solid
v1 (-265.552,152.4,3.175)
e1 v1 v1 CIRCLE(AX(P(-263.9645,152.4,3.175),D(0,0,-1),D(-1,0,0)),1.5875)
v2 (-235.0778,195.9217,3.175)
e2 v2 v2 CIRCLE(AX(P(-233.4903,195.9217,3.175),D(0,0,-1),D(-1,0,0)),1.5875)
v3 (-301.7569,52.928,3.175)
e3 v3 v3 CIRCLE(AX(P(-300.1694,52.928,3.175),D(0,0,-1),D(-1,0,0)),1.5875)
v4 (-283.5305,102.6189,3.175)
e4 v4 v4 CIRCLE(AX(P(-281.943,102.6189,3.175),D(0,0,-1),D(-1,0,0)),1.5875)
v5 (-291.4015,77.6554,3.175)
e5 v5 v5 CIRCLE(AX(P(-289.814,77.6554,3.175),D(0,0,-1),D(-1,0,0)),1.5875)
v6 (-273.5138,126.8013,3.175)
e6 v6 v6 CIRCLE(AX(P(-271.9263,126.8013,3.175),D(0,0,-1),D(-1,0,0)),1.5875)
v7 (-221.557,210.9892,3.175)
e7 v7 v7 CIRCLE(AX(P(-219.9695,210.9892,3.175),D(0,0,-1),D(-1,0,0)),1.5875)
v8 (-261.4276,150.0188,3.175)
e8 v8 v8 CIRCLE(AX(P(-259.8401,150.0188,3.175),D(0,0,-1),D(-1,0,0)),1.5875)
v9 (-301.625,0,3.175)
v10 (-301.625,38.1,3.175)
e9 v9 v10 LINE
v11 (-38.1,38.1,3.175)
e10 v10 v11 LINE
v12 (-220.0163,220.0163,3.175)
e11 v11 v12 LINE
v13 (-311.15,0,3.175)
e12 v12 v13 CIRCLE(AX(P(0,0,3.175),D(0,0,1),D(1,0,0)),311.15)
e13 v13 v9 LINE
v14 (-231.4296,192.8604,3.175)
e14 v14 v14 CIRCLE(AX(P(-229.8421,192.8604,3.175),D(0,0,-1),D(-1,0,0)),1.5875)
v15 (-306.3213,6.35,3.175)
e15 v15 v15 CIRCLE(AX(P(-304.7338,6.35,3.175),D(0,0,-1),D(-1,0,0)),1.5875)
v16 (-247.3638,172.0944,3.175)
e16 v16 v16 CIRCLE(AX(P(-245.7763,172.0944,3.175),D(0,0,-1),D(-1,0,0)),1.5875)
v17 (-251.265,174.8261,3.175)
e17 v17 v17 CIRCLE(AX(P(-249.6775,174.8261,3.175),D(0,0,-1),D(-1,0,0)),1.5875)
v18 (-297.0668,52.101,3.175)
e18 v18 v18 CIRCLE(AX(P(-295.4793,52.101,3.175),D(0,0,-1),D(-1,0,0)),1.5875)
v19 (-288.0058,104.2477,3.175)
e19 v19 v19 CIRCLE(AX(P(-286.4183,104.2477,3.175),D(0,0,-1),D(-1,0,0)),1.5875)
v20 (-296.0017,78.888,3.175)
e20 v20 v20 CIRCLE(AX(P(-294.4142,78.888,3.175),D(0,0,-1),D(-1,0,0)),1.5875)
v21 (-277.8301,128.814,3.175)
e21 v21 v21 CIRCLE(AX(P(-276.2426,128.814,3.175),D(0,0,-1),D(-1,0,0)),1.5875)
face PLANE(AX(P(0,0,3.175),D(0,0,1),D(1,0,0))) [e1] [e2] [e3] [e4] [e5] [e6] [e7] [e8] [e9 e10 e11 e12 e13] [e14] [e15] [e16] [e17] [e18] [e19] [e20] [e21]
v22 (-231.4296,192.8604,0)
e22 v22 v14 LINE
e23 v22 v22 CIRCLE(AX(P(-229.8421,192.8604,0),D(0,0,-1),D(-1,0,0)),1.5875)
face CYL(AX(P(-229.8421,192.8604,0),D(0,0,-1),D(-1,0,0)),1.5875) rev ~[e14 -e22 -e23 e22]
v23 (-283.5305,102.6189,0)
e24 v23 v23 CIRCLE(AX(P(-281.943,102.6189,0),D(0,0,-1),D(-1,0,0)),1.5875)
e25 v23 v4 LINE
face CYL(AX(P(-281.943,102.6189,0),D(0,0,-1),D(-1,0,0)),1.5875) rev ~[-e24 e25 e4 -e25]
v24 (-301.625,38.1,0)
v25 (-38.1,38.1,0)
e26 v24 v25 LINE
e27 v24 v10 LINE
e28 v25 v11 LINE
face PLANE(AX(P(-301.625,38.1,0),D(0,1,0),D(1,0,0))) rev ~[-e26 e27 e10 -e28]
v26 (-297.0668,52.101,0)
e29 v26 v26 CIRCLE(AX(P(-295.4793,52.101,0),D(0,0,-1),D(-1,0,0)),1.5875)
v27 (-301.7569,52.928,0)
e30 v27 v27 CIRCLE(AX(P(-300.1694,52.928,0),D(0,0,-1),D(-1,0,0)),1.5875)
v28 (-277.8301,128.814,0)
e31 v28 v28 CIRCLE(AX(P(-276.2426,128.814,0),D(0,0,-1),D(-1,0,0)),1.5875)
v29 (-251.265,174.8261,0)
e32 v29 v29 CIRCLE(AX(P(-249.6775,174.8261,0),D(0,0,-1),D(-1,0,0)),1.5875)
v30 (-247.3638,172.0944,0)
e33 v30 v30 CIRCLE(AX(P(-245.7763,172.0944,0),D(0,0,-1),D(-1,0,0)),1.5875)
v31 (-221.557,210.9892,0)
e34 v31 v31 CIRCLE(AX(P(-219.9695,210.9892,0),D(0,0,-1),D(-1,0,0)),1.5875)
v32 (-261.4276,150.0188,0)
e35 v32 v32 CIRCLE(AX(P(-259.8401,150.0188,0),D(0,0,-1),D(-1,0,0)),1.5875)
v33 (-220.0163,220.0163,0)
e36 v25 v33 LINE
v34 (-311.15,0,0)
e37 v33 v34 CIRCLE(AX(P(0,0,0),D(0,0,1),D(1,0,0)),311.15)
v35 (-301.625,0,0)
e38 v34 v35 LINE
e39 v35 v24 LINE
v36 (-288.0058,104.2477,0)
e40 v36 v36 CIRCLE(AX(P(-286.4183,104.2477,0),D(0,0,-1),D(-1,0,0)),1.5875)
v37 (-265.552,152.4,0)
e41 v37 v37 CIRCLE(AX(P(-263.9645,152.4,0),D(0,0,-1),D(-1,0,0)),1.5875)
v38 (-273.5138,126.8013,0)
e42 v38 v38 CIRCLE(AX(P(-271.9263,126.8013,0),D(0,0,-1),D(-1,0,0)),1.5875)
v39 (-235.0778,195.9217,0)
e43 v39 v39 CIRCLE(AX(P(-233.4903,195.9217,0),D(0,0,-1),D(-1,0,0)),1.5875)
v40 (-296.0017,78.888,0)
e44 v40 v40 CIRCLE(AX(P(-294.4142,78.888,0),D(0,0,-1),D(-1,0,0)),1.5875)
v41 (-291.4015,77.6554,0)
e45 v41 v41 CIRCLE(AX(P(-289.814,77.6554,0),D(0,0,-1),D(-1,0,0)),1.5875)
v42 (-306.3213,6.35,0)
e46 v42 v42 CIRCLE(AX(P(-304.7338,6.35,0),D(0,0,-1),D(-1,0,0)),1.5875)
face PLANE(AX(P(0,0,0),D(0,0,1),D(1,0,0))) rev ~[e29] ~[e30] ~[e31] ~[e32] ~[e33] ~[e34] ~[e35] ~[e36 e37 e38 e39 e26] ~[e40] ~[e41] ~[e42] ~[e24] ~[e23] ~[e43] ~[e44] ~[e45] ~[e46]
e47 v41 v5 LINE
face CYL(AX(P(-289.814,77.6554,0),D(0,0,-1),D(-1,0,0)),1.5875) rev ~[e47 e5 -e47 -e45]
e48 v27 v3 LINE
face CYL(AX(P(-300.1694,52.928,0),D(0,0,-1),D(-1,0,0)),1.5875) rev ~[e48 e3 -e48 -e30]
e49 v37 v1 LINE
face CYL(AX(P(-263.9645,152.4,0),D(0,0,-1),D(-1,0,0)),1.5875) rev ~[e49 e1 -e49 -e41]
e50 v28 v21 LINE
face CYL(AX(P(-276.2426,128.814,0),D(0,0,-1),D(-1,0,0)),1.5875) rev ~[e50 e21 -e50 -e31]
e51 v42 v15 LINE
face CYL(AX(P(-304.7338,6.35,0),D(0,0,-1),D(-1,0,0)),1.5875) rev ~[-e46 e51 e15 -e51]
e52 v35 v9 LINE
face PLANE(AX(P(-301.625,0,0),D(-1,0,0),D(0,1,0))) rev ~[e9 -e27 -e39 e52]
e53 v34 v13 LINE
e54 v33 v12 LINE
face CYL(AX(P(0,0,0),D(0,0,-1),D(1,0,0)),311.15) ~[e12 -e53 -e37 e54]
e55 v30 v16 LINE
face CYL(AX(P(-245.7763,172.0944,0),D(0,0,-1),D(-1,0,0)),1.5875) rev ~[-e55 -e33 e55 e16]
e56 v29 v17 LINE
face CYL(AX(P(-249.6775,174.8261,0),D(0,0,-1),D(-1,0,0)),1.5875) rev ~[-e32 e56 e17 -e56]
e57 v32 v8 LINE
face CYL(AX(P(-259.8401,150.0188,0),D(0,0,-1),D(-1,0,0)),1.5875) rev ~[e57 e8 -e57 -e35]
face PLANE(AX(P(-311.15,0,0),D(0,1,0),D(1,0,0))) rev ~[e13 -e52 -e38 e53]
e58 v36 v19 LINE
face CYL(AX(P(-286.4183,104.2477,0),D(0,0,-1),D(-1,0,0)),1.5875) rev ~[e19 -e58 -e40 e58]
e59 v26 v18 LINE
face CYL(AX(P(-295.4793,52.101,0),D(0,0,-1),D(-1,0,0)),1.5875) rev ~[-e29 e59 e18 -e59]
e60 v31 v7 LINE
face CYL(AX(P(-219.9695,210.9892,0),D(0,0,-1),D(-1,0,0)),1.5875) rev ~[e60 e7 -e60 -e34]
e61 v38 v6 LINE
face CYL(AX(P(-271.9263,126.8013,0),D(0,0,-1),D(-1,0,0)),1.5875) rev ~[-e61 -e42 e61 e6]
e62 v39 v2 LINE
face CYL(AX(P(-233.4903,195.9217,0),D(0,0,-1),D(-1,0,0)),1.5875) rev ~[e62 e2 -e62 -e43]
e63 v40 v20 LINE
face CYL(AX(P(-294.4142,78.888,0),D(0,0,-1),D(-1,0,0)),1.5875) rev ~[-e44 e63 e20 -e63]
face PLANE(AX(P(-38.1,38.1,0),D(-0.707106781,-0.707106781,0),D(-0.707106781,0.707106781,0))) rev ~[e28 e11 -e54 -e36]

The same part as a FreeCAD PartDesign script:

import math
import FreeCAD as App
import Part
import Sketcher
from FreeCAD import Vector
Q = App.Units.Quantity

doc = App.newDocument("Part")
body = doc.addObject("PartDesign::Body", "Body")

sketch1 = doc.addObject("Sketcher::SketchObject", "Sketch")
body.addObject(sketch1)
sketch1.AttachmentSupport = (doc.XY_Plane, [""])
sketch1.MapMode = "FlatFace"
sketch1.addGeometry(Part.ArcOfCircle(Part.Circle(Vector(0, 0, 0), Vector(0, 0, 1), 311), math.radians(135), math.radians(180)), False)
sketch1.addGeometry(Part.LineSegment(Vector(-311, 0, 0), Vector(-302, 0, 0)), False)
sketch1.addGeometry(Part.LineSegment(Vector(-302, 0, 0), Vector(-302, 38, 0)), False)
sketch1.addGeometry(Part.LineSegment(Vector(-302, 38, 0), Vector(-38, 38, 0)), False)
sketch1.addGeometry(Part.LineSegment(Vector(-38, 38, 0), Vector(-220, 220, 0)), False)
sketch1.addConstraint(Sketcher.Constraint("Coincident", 0, 2, 1, 1))
sketch1.addConstraint(Sketcher.Constraint("Coincident", 1, 2, 2, 1))
sketch1.addConstraint(Sketcher.Constraint("Coincident", 2, 2, 3, 1))
sketch1.addConstraint(Sketcher.Constraint("Coincident", 3, 2, 4, 1))
sketch1.addConstraint(Sketcher.Constraint("Coincident", 4, 2, 0, 1))
sketch1.addConstraint(Sketcher.Constraint("Horizontal", 1))
sketch1.addConstraint(Sketcher.Constraint("Vertical", 2))
sketch1.addConstraint(Sketcher.Constraint("Horizontal", 3))
sketch1.addConstraint(Sketcher.Constraint("Coincident", 0, 3, -1, 1))
sketch1.addConstraint(Sketcher.Constraint("PointOnObject", 1, 2, -1))
sketch1.addConstraint(Sketcher.Constraint("DistanceY", 2, 1, 2, 2, Q("1.5 in")))
sketch1.addConstraint(Sketcher.Constraint("DistanceX", 3, 2, -1, 1, Q("1.5 in")))
sketch1.addConstraint(Sketcher.Constraint("DistanceX", 1, 1, 1, 2, Q("0.375 in")))
sketch1.addConstraint(Sketcher.Constraint("Radius", 0, Q("12.25 in")))
sketch1.addConstraint(Sketcher.Constraint("Angle", 4, Q("135 deg")))
pad1 = doc.addObject("PartDesign::Pad", "Pad")
body.addObject(pad1)
pad1.Profile = sketch1
pad1.Length = Q("0.125 in")

sketch2 = doc.addObject("Sketcher::SketchObject", "Sketch001")
body.addObject(sketch2)
sketch2.AttachmentSupport = (doc.XY_Plane, [""])
sketch2.MapMode = "FlatFace"
sketch2.addGeometry(Part.Circle(Vector(-245.8, 172.1, 0), Vector(0, 0, 1), 1.6), False)
sketch2.addGeometry(Part.Circle(Vector(-271.9, 126.8, 0), Vector(0, 0, 1), 1.6), False)
sketch2.addGeometry(Part.Circle(Vector(-289.8, 77.7, 0), Vector(0, 0, 1), 1.6), False)
sketch2.addGeometry(Part.Circle(Vector(-304.7, 6.3, 0), Vector(0, 0, 1), 1.6), False)
sketch2.addGeometry(Part.Circle(Vector(-249.7, 174.8, 0), Vector(0, 0, 1), 1.6), False)
sketch2.addGeometry(Part.Circle(Vector(-276.2, 128.8, 0), Vector(0, 0, 1), 1.6), False)
sketch2.addGeometry(Part.Circle(Vector(-294.4, 78.9, 0), Vector(0, 0, 1), 1.6), False)
sketch2.addGeometry(Part.Circle(Vector(-300.2, 52.9, 0), Vector(0, 0, 1), 1.6), False)
sketch2.addGeometry(Part.Circle(Vector(-286.4, 104.2, 0), Vector(0, 0, 1), 1.6), False)
sketch2.addGeometry(Part.Circle(Vector(-264, 152.4, 0), Vector(0, 0, 1), 1.6), False)
sketch2.addGeometry(Part.Circle(Vector(-233.5, 195.9, 0), Vector(0, 0, 1), 1.6), False)
sketch2.addGeometry(Part.Circle(Vector(-220, 211, 0), Vector(0, 0, 1), 1.6), False)
sketch2.addGeometry(Part.Circle(Vector(-295.5, 52.1, 0), Vector(0, 0, 1), 1.6), False)
sketch2.addGeometry(Part.Circle(Vector(-281.9, 102.6, 0), Vector(0, 0, 1), 1.6), False)
sketch2.addGeometry(Part.Circle(Vector(-259.8, 150, 0), Vector(0, 0, 1), 1.6), False)
sketch2.addGeometry(Part.Circle(Vector(-229.8, 192.9, 0), Vector(0, 0, 1), 1.6), False)
sketch2.addConstraint(Sketcher.Constraint("Equal", 0, 1))
sketch2.addConstraint(Sketcher.Constraint("Equal", 1, 2))
sketch2.addConstraint(Sketcher.Constraint("Equal", 2, 3))
sketch2.addConstraint(Sketcher.Constraint("Equal", 3, 4))
sketch2.addConstraint(Sketcher.Constraint("Equal", 4, 5))
sketch2.addConstraint(Sketcher.Constraint("Equal", 5, 6))
sketch2.addConstraint(Sketcher.Constraint("Equal", 6, 7))
sketch2.addConstraint(Sketcher.Constraint("Equal", 7, 8))
sketch2.addConstraint(Sketcher.Constraint("Equal", 8, 9))
sketch2.addConstraint(Sketcher.Constraint("Equal", 9, 10))
sketch2.addConstraint(Sketcher.Constraint("Equal", 10, 11))
sketch2.addConstraint(Sketcher.Constraint("Equal", 11, 12))
sketch2.addConstraint(Sketcher.Constraint("Equal", 12, 13))
sketch2.addConstraint(Sketcher.Constraint("Equal", 13, 14))
sketch2.addConstraint(Sketcher.Constraint("Equal", 14, 15))
sketch2.addConstraint(Sketcher.Constraint("Diameter", 0, Q("0.125 in")))
sketch2.addConstraint(Sketcher.Constraint("DistanceY", -1, 1, 9, 3, Q("6 in")))
sketch2.addConstraint(Sketcher.Constraint("DistanceX", 2, 3, -1, 1, Q("11.41 in")))
sketch2.addConstraint(Sketcher.Constraint("DistanceY", -1, 1, 3, 3, Q("0.25 in")))
sketch2.addConstraint(Sketcher.Constraint("DistanceY", 4, 3, 15, 3, Q("0.71 in")))
sketch2.addConstraint(Sketcher.Constraint("DistanceY", -1, 1, 14, 3, Q("5.906252 in")))
sketch2.addConstraint(Sketcher.Constraint("DistanceX", 7, 3, 5, 3, Q("0.942 in")))
sketch2.addConstraint(Sketcher.Constraint("DistanceX", 8, 3, 9, 3, Q("0.884 in")))
sketch2.addConstraint(Sketcher.Constraint("DistanceX", 6, 3, 13, 3, Q("0.491 in")))
sketch2.addConstraint(Sketcher.Constraint("DistanceY", -1, 1, 2, 3, Q("3.0573 in")))
sketch2.addConstraint(Sketcher.Constraint("DistanceX", 3, 3, -1, 1, Q("11.9974 in")))
sketch2.addConstraint(Sketcher.Constraint("DistanceX", 5, 3, -1, 1, Q("10.8757 in")))
sketch2.addConstraint(Sketcher.Constraint("DistanceX", 6, 3, -1, 1, Q("11.5911 in")))
sketch2.addConstraint(Sketcher.Constraint("DistanceX", 8, 3, -1, 1, Q("11.2763 in")))
sketch2.addConstraint(Sketcher.Constraint("DistanceX", 15, 3, -1, 1, Q("9.0489 in")))
sketch2.addConstraint(Sketcher.Constraint("DistanceY", 1, 3, 0, 3, Q("1.7832 in")))
sketch2.addConstraint(Sketcher.Constraint("DistanceX", 4, 3, 0, 3, Q("0.1536 in")))
sketch2.addConstraint(Sketcher.Constraint("DistanceY", 5, 3, 4, 3, Q("1.8115 in")))
sketch2.addConstraint(Sketcher.Constraint("DistanceY", 6, 3, 5, 3, Q("1.9656 in")))
sketch2.addConstraint(Sketcher.Constraint("DistanceY", 7, 3, 1, 3, Q("2.9084 in")))
sketch2.addConstraint(Sketcher.Constraint("DistanceX", 4, 3, 10, 3, Q("0.6373 in")))
sketch2.addConstraint(Sketcher.Constraint("DistanceY", 10, 3, 11, 3, Q("0.5932 in")))
sketch2.addConstraint(Sketcher.Constraint("DistanceY", 0, 3, 11, 3, Q("1.5313 in")))
sketch2.addConstraint(Sketcher.Constraint("DistanceX", 4, 3, 11, 3, Q("1.1696 in")))
sketch2.addConstraint(Sketcher.Constraint("DistanceY", 12, 3, 6, 3, Q("1.0546 in")))
sketch2.addConstraint(Sketcher.Constraint("DistanceY", 13, 3, 5, 3, Q("1.0313 in")))
sketch2.addConstraint(Sketcher.Constraint("DistanceX", 14, 3, 0, 3, Q("0.5537 in")))
sketch2.addConstraint(Sketcher.Constraint("DistanceX", 0, 3, -1, 1, Q("245.7763 mm")))
sketch2.addConstraint(Sketcher.Constraint("DistanceY", -1, 1, 0, 3, Q("172.0944 mm")))
sketch2.addConstraint(Sketcher.Constraint("DistanceX", 1, 3, -1, 1, Q("271.9263 mm")))
sketch2.addConstraint(Sketcher.Constraint("DistanceY", -1, 1, 4, 3, Q("174.826 mm")))
sketch2.addConstraint(Sketcher.Constraint("DistanceY", -1, 1, 8, 3, Q("104.2477 mm")))
sketch2.addConstraint(Sketcher.Constraint("DistanceX", 12, 3, -1, 1, Q("295.4793 mm")))
pocket1 = doc.addObject("PartDesign::Pocket", "Pocket")
body.addObject(pocket1)
pocket1.Profile = sketch2
pocket1.Type = "ThroughAll"
pocket1.Reversed = True

doc.recompute()
